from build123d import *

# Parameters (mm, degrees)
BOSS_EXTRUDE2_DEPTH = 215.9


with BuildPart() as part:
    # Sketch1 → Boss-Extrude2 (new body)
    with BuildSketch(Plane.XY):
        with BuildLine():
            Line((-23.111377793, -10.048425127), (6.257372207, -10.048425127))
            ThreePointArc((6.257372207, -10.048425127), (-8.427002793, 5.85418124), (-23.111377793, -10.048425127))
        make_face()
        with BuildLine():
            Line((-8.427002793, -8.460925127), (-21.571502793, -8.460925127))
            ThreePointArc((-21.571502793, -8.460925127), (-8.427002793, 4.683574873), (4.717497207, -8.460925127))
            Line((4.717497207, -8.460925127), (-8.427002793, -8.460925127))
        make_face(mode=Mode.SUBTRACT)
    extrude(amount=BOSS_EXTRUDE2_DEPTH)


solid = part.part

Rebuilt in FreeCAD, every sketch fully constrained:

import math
import FreeCAD as App
import Part
import Sketcher
from FreeCAD import Vector
Q = App.Units.Quantity

doc = App.newDocument("Part")
params = doc.addObject("Spreadsheet::Sheet", "Params")
for row, (alias, value) in enumerate([
    ("sketch1_width", "1.15625 in"),
    ("pad1_length", "8.5 in"),
], start=1):
    params.set(f"A{row}", alias)
    params.set(f"B{row}", "=" + value)
    params.setAlias(f"B{row}", alias)

body = doc.addObject("PartDesign::Body", "Body")

sketch1 = doc.addObject("Sketcher::SketchObject", "Sketch")
body.addObject(sketch1)
sketch1.AttachmentSupport = (doc.XY_Plane, [""])
sketch1.MapMode = "FlatFace"
sketch1.addGeometry([
    Part.LineSegment(Vector(-23, -10, 0), Vector(6, -10, 0)),
    Part.ArcOfCircle(Part.Circle(Vector(-8, -9, 0), Vector(0, 0, 1), 15), math.radians(-5), math.radians(185)),
    Part.LineSegment(Vector(5, -8, 0), Vector(-22, -8, 0)),
    Part.ArcOfCircle(Part.Circle(Vector(-8, -8, 0), Vector(0, 0, 1), 13), math.radians(0), math.radians(180)),
], False)
sketch1.addConstraint([
    Sketcher.Constraint("Coincident", 0, 1, 1, 2),
    Sketcher.Constraint("Coincident", 1, 1, 0, 2),
    Sketcher.Constraint("Coincident", 2, 1, 3, 1),
    Sketcher.Constraint("Coincident", 3, 2, 2, 2),
    Sketcher.Constraint("Horizontal", 0),
    Sketcher.Constraint("Horizontal", 2),
    Sketcher.Constraint("Horizontal", 3, 3, 2, 1),
    Sketcher.Constraint("Vertical", 1, 3, 3, 3),
    Sketcher.Constraint("Radius", 3, Q("0.5175 in")),
    Sketcher.Constraint("DistanceX", 0, 1, 0, 2, Q("1.15625 in")),
    Sketcher.Constraint("DistanceY", 0, 1, 3, 3, Q("0.0625 in")),
    Sketcher.Constraint("Radius", 1, 14.731037),
    Sketcher.Constraint("DistanceX", 1, 3, -1, 1, 8.427003),
    Sketcher.Constraint("DistanceY", 1, 3, -1, 1, 8.876856),
])
sketch1.setExpression("Constraints[9]", "Params.sketch1_width")
pad1 = doc.addObject("PartDesign::Pad", "Pad")
body.addObject(pad1)
pad1.Profile = sketch1
pad1.setExpression("Length", "Params.pad1_length")

doc.recompute()
